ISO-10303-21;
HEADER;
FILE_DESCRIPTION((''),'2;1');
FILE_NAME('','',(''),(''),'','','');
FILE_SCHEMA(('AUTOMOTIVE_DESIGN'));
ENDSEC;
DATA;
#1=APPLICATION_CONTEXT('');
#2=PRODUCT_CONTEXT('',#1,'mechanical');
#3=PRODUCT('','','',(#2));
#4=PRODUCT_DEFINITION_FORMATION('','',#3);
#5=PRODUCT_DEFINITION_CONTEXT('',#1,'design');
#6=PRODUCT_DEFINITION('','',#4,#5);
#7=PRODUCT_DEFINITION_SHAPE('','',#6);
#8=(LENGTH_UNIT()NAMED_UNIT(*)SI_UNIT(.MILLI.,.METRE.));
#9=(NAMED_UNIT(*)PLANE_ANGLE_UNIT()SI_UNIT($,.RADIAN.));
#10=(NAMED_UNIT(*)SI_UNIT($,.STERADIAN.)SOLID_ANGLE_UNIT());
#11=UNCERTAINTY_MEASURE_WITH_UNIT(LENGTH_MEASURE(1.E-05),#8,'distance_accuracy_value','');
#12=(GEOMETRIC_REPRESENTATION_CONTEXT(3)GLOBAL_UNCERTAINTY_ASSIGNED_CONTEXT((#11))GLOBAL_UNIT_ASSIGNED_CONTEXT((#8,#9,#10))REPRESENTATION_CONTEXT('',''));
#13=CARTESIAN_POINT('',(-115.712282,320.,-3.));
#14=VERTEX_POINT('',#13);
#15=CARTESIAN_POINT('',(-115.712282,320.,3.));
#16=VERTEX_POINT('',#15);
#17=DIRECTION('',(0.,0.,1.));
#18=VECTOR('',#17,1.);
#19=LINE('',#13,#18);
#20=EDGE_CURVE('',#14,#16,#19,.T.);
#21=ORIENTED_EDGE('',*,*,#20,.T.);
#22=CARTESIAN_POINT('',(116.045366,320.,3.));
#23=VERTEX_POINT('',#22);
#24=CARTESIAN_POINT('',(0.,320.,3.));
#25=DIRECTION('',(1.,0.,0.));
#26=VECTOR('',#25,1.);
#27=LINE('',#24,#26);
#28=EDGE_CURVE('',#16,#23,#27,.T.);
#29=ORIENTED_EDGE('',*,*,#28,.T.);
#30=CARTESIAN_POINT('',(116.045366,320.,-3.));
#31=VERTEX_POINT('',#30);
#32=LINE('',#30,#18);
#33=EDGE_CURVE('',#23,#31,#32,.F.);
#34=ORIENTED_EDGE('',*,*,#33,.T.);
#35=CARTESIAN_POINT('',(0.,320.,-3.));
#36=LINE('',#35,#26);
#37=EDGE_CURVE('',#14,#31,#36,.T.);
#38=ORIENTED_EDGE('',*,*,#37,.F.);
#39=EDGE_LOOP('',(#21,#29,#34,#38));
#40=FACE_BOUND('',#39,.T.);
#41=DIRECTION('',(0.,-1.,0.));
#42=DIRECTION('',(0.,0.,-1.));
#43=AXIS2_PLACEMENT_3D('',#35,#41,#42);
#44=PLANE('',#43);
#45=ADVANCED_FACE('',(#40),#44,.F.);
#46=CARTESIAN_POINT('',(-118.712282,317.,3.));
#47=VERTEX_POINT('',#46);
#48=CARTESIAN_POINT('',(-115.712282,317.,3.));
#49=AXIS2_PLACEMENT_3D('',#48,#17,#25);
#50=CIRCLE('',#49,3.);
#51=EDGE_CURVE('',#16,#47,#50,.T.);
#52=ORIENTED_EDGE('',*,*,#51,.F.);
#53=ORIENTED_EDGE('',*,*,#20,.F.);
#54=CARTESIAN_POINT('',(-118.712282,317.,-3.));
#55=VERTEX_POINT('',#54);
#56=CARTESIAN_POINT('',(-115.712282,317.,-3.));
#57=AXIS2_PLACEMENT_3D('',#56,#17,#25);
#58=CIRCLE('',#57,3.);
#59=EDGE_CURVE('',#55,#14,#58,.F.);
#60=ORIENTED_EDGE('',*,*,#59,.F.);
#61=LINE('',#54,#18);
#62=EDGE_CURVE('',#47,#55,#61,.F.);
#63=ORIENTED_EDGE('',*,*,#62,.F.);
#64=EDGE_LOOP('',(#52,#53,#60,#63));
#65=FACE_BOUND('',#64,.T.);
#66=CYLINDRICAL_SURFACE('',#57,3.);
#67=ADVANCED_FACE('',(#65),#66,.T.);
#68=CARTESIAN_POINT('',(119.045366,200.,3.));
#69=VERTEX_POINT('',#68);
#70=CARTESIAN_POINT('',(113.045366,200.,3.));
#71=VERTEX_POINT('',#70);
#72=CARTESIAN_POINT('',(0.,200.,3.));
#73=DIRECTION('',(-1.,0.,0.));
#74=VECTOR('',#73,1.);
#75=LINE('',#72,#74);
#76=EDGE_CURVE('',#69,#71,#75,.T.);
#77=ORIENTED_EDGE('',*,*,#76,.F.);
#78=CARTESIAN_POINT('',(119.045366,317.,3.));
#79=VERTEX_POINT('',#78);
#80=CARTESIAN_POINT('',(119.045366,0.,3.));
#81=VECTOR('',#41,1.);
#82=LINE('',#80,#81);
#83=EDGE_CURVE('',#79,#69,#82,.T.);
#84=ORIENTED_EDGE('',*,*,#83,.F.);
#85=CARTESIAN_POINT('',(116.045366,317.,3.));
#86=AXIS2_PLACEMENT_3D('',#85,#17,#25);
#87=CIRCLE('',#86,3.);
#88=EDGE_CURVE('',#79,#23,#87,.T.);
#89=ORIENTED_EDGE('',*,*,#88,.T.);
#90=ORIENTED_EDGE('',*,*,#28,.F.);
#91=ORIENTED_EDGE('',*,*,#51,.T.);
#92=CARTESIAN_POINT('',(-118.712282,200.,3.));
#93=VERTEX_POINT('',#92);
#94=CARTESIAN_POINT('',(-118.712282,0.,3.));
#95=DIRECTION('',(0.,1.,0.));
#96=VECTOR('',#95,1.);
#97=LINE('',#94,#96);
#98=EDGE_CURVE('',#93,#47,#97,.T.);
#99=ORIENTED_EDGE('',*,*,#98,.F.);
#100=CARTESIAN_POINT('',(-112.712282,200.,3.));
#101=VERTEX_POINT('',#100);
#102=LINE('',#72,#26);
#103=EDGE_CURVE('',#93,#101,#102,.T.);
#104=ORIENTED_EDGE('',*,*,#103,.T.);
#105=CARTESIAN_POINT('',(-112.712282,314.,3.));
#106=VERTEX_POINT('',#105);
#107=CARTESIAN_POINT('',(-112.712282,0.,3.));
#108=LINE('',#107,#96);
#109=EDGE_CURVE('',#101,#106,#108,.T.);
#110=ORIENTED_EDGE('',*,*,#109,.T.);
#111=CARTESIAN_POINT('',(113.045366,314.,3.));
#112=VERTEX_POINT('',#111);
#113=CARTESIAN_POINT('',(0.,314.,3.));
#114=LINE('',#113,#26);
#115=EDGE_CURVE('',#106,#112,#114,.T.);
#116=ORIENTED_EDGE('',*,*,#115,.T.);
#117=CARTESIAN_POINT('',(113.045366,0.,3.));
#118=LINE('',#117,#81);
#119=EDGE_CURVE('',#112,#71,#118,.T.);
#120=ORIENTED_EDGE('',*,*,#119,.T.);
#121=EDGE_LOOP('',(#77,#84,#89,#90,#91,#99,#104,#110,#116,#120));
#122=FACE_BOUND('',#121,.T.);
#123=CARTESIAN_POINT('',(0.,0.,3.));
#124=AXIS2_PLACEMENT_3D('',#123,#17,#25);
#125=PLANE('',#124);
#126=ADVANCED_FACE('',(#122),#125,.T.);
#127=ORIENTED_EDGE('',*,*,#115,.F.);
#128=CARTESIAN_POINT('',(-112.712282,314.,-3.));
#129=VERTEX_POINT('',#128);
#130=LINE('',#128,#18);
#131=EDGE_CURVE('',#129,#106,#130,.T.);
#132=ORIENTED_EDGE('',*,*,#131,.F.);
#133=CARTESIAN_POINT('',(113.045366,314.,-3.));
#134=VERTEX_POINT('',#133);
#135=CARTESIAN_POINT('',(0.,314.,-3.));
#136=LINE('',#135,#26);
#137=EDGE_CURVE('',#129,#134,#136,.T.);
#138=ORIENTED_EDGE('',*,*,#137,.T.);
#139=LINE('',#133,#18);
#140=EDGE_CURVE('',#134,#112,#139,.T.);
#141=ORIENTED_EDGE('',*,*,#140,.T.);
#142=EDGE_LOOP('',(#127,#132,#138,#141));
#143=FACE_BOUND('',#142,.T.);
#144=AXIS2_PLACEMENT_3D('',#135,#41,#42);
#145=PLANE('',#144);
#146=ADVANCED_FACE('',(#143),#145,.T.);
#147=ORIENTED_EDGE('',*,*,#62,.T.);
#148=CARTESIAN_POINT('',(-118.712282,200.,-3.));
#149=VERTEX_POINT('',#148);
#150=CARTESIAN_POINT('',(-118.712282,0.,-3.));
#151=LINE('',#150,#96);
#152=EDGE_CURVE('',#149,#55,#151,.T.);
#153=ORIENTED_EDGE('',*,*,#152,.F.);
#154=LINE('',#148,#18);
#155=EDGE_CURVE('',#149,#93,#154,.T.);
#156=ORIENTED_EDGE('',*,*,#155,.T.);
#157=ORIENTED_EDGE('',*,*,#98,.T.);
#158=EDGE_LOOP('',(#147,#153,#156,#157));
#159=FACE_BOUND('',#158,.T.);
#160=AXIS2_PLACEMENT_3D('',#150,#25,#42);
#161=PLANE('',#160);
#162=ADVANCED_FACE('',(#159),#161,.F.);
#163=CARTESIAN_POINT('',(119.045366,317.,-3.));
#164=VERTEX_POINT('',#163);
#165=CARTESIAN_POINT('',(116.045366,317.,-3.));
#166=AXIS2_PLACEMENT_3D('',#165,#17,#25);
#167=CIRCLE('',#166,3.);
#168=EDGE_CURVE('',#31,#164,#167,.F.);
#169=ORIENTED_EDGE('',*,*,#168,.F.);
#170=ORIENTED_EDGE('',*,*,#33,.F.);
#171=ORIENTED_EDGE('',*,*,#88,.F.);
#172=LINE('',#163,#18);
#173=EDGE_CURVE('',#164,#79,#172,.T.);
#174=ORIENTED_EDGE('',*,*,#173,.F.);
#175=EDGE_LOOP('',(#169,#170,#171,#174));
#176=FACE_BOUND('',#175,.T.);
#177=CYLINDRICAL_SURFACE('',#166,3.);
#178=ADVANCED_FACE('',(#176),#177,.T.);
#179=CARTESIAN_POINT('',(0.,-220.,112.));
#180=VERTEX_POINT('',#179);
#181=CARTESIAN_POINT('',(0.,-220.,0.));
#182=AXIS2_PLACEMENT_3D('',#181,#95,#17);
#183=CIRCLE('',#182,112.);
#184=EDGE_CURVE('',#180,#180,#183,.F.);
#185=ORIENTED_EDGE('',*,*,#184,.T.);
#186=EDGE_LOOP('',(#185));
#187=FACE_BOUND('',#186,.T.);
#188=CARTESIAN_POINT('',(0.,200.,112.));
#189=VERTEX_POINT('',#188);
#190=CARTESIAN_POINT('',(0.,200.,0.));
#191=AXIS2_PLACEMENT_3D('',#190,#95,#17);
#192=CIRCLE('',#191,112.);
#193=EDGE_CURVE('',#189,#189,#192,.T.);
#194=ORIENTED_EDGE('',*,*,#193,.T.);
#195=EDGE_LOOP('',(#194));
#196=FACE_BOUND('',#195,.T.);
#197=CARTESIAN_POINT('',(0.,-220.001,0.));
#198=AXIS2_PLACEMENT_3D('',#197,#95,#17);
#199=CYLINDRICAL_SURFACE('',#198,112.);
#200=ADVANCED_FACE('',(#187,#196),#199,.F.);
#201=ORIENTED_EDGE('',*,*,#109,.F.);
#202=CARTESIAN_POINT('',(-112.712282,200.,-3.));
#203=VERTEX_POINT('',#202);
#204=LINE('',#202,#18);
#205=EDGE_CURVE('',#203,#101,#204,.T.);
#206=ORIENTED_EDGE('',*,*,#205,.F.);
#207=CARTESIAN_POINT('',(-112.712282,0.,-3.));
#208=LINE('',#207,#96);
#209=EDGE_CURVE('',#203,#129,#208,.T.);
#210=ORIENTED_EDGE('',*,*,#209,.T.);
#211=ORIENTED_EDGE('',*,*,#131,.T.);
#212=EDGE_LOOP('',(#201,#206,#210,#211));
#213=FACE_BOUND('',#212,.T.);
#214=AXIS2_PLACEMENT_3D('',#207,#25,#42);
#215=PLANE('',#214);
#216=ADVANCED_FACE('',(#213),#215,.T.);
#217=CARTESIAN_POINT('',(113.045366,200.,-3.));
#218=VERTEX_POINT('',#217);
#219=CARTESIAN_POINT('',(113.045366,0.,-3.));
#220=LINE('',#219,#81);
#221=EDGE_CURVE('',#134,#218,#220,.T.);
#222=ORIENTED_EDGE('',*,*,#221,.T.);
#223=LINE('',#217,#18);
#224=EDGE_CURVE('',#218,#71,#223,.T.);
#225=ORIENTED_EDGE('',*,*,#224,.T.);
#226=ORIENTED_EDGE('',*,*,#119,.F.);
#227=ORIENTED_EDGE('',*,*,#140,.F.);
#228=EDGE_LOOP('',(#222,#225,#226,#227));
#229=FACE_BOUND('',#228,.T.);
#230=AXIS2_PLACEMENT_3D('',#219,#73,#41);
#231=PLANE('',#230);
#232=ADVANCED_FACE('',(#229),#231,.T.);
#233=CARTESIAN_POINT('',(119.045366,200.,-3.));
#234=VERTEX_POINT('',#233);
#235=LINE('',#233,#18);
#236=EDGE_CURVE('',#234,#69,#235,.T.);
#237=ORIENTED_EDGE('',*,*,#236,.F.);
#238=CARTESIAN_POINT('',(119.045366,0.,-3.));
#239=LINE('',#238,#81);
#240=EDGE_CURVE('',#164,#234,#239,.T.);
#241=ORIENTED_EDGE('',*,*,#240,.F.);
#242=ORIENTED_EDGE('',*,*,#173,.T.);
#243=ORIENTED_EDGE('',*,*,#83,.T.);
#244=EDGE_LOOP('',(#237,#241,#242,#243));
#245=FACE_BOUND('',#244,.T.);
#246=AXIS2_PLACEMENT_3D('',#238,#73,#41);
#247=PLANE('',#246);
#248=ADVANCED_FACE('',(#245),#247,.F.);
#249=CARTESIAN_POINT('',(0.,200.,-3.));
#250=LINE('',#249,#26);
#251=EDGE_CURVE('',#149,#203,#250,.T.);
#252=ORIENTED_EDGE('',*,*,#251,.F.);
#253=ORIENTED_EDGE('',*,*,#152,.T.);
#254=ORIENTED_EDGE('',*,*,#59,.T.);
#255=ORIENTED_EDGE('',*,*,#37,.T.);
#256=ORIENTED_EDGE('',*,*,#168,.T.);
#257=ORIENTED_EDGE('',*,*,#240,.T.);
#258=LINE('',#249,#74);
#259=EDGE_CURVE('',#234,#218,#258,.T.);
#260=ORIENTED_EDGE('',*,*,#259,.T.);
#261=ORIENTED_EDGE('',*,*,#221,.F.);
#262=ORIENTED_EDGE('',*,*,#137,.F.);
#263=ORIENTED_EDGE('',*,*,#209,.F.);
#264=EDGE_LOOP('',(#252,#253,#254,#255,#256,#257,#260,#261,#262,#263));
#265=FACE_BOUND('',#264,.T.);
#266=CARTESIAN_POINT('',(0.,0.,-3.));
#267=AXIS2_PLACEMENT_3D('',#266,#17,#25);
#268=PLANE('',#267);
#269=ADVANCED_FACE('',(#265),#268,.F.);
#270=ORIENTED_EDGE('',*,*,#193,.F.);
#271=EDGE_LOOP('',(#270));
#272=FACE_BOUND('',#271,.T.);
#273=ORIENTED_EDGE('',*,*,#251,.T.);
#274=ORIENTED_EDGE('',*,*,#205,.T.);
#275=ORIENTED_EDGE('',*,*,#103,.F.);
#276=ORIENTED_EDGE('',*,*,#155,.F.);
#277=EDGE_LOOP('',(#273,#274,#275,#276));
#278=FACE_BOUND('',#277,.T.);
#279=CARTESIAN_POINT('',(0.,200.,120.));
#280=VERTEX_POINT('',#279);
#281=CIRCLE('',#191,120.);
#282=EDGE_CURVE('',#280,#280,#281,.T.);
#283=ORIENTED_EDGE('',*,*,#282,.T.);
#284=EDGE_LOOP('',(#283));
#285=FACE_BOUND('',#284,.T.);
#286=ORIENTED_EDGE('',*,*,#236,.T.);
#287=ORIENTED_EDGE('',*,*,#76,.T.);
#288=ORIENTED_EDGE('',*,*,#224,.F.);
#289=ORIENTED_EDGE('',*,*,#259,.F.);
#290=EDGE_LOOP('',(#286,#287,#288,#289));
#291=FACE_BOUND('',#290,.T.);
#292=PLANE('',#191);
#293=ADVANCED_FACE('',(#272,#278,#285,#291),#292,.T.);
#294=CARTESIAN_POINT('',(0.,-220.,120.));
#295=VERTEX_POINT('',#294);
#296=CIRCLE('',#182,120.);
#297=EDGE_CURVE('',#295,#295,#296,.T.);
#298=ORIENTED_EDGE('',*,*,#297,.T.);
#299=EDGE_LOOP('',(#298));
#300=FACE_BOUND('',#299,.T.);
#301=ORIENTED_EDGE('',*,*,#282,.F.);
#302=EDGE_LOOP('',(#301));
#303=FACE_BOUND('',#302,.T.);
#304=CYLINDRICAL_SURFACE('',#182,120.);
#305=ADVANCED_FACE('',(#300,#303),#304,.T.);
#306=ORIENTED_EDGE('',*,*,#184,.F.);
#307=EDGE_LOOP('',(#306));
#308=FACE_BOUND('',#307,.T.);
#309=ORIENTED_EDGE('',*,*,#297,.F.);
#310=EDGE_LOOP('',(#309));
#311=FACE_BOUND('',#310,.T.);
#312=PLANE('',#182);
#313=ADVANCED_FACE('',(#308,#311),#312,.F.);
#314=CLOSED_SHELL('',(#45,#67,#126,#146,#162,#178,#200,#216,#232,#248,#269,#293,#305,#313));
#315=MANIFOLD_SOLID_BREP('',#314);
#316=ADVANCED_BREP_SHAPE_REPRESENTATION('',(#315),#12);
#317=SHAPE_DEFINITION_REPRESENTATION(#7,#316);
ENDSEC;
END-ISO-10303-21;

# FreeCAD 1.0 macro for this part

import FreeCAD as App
import Part
import Sketcher
Q = App.Units.Quantity


def edges_at(feature, points):
    """Names of the edges that pass closest to the given points."""
    edges = feature.Shape.Edges
    near = lambda p: min(range(len(edges)), key=lambda i: edges[i].distToShape(Part.Vertex(*p))[0])
    return sorted({f"Edge{near(p) + 1}" for p in points})


def add_polygon(sketch, points):
    """Adds a closed chain of lines whose ends are joined by coincident constraints."""
    first, n = sketch.GeometryCount, len(points)
    for a, b in zip(points, points[1:] + points[:1]):
        sketch.addGeometry(Part.LineSegment(App.Vector(*a, 0), App.Vector(*b, 0)), False)
    for i in range(n):
        sketch.addConstraint(Sketcher.Constraint("Coincident", first + i, 2, first + (i + 1) % n, 1))

doc = App.newDocument("Part")
body = doc.addObject("PartDesign::Body", "Body")

# Sketch on XZ plane
sketch1 = body.newObject("Sketcher::SketchObject", "Sketch")
sketch1.AttachmentSupport = (doc.getObject("XZ_Plane"), [""])
sketch1.MapMode = "FlatFace"
sketch1.addGeometry(Part.Circle(App.Vector(0, 0, 0), App.Vector(0, 0, 1), 120), False)
sketch1.addConstraint([
    Sketcher.Constraint("Coincident", 0, 3, -1, 1),
    Sketcher.Constraint("Diameter", 0, Q("240 mm")),
])
pad1 = body.newObject("PartDesign::Pad", "Pad")
pad1.Profile = sketch1
pad1.Type = "TwoLengths"
pad1.Length = 200
pad1.Length2 = 220
pad1.Reversed = True

# Sketch on XZ plane
sketch2 = body.newObject("Sketcher::SketchObject", "Sketch001")
sketch2.AttachmentSupport = (doc.getObject("XZ_Plane"), [""])
sketch2.MapMode = "FlatFace"
sketch2.AttachmentOffset = App.Placement(App.Vector(0, 0, -200), App.Rotation())
sketch2.addGeometry(Part.Circle(App.Vector(0, 0, 0), App.Vector(0, 0, 1), 112), False)
sketch2.addConstraint([
    Sketcher.Constraint("Coincident", 0, 3, -1, 1),
    Sketcher.Constraint("Diameter", 0, Q("224 mm")),
])
pocket1 = body.newObject("PartDesign::Pocket", "Pocket")
pocket1.Profile = sketch2
pocket1.Type = "UpToFirst"
pocket1.Reversed = True

# Sketch on XY plane
sketch3 = body.newObject("Sketcher::SketchObject", "Sketch002")
sketch3.AttachmentSupport = (doc.getObject("XY_Plane"), [""])
sketch3.MapMode = "FlatFace"
add_polygon(sketch3, [(-118.712282, 320), (-118.712282, 200), (-112.712282, 200), (-112.712282, 314), (113.045366, 314), (113.045366, 200), (119.045366, 200), (119.045366, 320)])  # lines 0-7
sketch3.addConstraint([
    Sketcher.Constraint("Vertical", 0),
    Sketcher.Constraint("Horizontal", 1),
    Sketcher.Constraint("Vertical", 2),
    Sketcher.Constraint("Horizontal", 3),
    Sketcher.Constraint("Vertical", 4),
    Sketcher.Constraint("Horizontal", 5),
    Sketcher.Constraint("Vertical", 6),
    Sketcher.Constraint("Horizontal", 7),
    Sketcher.Constraint("Horizontal", 1, 2, 4, 2),
    Sketcher.Constraint("Equal", 1, 5),
    Sketcher.Constraint("DistanceX", 1, 1, 1, 2, Q("6 mm")),
    Sketcher.Constraint("DistanceY", 0, 2, 0, 1, Q("120 mm")),
    Sketcher.Constraint("DistanceY", 2, 1, 2, 2, Q("114 mm")),
    Sketcher.Constraint("DistanceY", -1, 1, 0, 2, Q("200 mm")),
    Sketcher.Constraint("DistanceX", 3, 1, 3, 2, Q("225.757647 mm")),
    Sketcher.Constraint("DistanceX", 0, 2, -1, 1, Q("118.712282 mm")),
])
pad2 = body.newObject("PartDesign::Pad", "Pad001")
pad2.Profile = sketch3
pad2.Type = "TwoLengths"
pad2.Length = 3
pad2.Length2 = 3
doc.recompute()

fillet = body.newObject("PartDesign::Fillet", "Fillet")
fillet.Base = (pad2, edges_at(pad2, [(-118.712, 320, 0), (119.045, 320, 0)]))
fillet.Radius = 3

doc.recompute()
